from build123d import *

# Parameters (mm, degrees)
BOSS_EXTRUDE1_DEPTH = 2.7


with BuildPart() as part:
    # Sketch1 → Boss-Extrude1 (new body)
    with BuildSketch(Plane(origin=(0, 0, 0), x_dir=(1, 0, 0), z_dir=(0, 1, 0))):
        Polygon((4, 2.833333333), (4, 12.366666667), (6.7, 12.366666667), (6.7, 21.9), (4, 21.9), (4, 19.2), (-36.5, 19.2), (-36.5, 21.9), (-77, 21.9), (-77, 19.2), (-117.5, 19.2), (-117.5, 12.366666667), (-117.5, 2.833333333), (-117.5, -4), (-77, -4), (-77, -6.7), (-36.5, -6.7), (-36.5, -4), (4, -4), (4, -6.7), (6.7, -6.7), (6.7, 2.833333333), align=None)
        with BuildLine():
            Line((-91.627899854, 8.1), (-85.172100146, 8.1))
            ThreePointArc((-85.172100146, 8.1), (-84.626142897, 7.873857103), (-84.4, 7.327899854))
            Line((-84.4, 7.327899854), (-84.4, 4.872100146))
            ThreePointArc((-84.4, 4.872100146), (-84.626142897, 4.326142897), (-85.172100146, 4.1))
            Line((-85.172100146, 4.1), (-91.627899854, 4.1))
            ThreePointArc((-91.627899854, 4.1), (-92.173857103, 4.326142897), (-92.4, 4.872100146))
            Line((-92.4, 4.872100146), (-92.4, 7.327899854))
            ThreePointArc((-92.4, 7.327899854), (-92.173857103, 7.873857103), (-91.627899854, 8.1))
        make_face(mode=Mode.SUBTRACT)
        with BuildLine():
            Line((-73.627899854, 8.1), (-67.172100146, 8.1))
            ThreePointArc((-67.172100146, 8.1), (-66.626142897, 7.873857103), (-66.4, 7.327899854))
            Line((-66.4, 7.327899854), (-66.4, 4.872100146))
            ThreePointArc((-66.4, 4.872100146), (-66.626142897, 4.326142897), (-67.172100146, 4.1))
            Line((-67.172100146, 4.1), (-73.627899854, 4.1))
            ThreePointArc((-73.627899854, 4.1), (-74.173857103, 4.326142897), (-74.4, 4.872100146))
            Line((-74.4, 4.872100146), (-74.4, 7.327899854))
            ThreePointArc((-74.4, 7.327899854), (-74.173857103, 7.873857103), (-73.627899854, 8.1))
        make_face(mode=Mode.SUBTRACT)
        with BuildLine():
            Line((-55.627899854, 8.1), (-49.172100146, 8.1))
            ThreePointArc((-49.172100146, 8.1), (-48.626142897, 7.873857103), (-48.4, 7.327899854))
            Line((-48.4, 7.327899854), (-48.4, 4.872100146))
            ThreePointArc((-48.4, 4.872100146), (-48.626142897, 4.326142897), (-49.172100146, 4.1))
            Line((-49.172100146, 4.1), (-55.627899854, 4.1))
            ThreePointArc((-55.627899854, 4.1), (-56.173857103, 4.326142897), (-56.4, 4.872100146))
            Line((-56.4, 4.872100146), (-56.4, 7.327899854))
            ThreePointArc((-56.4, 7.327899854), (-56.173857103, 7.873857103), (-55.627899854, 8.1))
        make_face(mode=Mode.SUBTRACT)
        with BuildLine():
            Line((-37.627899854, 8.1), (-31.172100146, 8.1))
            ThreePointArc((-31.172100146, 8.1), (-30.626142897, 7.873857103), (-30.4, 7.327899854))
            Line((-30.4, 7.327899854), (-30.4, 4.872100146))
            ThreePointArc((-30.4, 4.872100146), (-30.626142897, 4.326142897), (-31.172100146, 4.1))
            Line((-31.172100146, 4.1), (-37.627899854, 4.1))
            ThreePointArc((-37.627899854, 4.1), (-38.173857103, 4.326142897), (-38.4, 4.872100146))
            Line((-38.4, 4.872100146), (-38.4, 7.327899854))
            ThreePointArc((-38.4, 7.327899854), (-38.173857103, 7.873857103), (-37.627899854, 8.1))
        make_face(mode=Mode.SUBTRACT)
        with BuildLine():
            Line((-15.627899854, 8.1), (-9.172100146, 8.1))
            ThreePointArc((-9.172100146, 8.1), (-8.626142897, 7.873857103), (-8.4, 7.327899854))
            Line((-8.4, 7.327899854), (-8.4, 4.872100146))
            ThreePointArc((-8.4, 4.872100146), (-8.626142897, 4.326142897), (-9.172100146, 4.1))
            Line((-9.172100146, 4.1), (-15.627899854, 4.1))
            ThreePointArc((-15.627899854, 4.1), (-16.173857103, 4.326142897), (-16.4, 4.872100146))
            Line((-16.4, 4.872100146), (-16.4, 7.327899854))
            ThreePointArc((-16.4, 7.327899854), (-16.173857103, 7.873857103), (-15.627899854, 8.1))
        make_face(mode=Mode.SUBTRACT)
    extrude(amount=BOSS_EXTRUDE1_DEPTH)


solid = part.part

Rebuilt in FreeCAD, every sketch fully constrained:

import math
import FreeCAD as App
import Part
import Sketcher

doc = App.newDocument("Part")
params = doc.addObject("Spreadsheet::Sheet", "Params")
for row, (alias, value) in enumerate([
    ("sketch1_width", "2.7 mm"),
    ("sketch1_width2", "40.5 mm"),
    ("sketch1_height", "23.2 mm"),
    ("pad1_length", "2.7 mm"),
], start=1):
    params.set(f"A{row}", alias)
    params.set(f"B{row}", "=" + value)
    params.setAlias(f"B{row}", alias)

body = doc.addObject("PartDesign::Body", "Body")

# Sketch on XZ plane
sketch1 = doc.addObject("Sketcher::SketchObject", "Sketch")
body.addObject(sketch1)
sketch1.AttachmentSupport = (doc.XZ_Plane, [""])
sketch1.MapMode = "FlatFace"
sketch1.addGeometry([
    Part.LineSegment(App.Vector(4, -2.8, 0), App.Vector(4, -12.4, 0)),  # 0
    Part.LineSegment(App.Vector(4, -12.4, 0), App.Vector(6.7, -12.4, 0)),  # 1
    Part.LineSegment(App.Vector(6.7, -12.4, 0), App.Vector(6.7, -21.9, 0)),  # 2
    Part.LineSegment(App.Vector(6.7, -21.9, 0), App.Vector(4, -21.9, 0)),  # 3
    Part.LineSegment(App.Vector(4, -21.9, 0), App.Vector(4, -19.2, 0)),  # 4
    Part.LineSegment(App.Vector(4, -19.2, 0), App.Vector(-36.5, -19.2, 0)),  # 5
    Part.LineSegment(App.Vector(-36.5, -19.2, 0), App.Vector(-36.5, -21.9, 0)),  # 6
    Part.LineSegment(App.Vector(-36.5, -21.9, 0), App.Vector(-77, -21.9, 0)),  # 7
    Part.LineSegment(App.Vector(-77, -21.9, 0), App.Vector(-77, -19.2, 0)),  # 8
    Part.LineSegment(App.Vector(-77, -19.2, 0), App.Vector(-117.5, -19.2, 0)),  # 9
    Part.LineSegment(App.Vector(-117.5, -19.2, 0), App.Vector(-117.5, 4, 0)),  # 10
    Part.LineSegment(App.Vector(-117.5, 4, 0), App.Vector(-77, 4, 0)),  # 11
    Part.LineSegment(App.Vector(-77, 4, 0), App.Vector(-77, 6.7, 0)),  # 12
    Part.LineSegment(App.Vector(-77, 6.7, 0), App.Vector(-36.5, 6.7, 0)),  # 13
    Part.LineSegment(App.Vector(-36.5, 6.7, 0), App.Vector(-36.5, 4, 0)),  # 14
    Part.LineSegment(App.Vector(-36.5, 4, 0), App.Vector(4, 4, 0)),  # 15
    Part.LineSegment(App.Vector(4, 4, 0), App.Vector(4, 6.7, 0)),  # 16
    Part.LineSegment(App.Vector(4, 6.7, 0), App.Vector(6.7, 6.7, 0)),  # 17
    Part.LineSegment(App.Vector(6.7, 6.7, 0), App.Vector(6.7, -2.8, 0)),  # 18
    Part.LineSegment(App.Vector(6.7, -2.8, 0), App.Vector(4, -2.8, 0)),  # 19
    Part.ArcOfCircle(Part.Circle(App.Vector(-91.6, -7.3, 0), App.Vector(0, 0, 1), 0.8), math.radians(180), math.radians(270)),  # 20
    Part.LineSegment(App.Vector(-91.6, -8.1, 0), App.Vector(-85.2, -8.1, 0)),  # 21
    Part.ArcOfCircle(Part.Circle(App.Vector(-85.2, -7.3, 0), App.Vector(0, 0, 1), 0.8), math.radians(-90), math.radians(0)),  # 22
    Part.LineSegment(App.Vector(-84.4, -7.3, 0), App.Vector(-84.4, -4.9, 0)),  # 23
    Part.ArcOfCircle(Part.Circle(App.Vector(-85.2, -4.9, 0), App.Vector(0, 0, 1), 0.8), math.radians(0), math.radians(90)),  # 24
    Part.LineSegment(App.Vector(-85.2, -4.1, 0), App.Vector(-91.6, -4.1, 0)),  # 25
    Part.ArcOfCircle(Part.Circle(App.Vector(-91.6, -4.9, 0), App.Vector(0, 0, 1), 0.8), math.radians(90), math.radians(180)),  # 26
    Part.LineSegment(App.Vector(-92.4, -4.9, 0), App.Vector(-92.4, -7.3, 0)),  # 27
    Part.ArcOfCircle(Part.Circle(App.Vector(-73.6, -7.3, 0), App.Vector(0, 0, 1), 0.8), math.radians(180), math.radians(270)),  # 28
    Part.LineSegment(App.Vector(-73.6, -8.1, 0), App.Vector(-67.2, -8.1, 0)),  # 29
    Part.ArcOfCircle(Part.Circle(App.Vector(-67.2, -7.3, 0), App.Vector(0, 0, 1), 0.8), math.radians(-90), math.radians(0)),  # 30
    Part.LineSegment(App.Vector(-66.4, -7.3, 0), App.Vector(-66.4, -4.9, 0)),  # 31
    Part.ArcOfCircle(Part.Circle(App.Vector(-67.2, -4.9, 0), App.Vector(0, 0, 1), 0.8), math.radians(0), math.radians(90)),  # 32
    Part.LineSegment(App.Vector(-67.2, -4.1, 0), App.Vector(-73.6, -4.1, 0)),  # 33
    Part.ArcOfCircle(Part.Circle(App.Vector(-73.6, -4.9, 0), App.Vector(0, 0, 1), 0.8), math.radians(90), math.radians(180)),  # 34
    Part.LineSegment(App.Vector(-74.4, -4.9, 0), App.Vector(-74.4, -7.3, 0)),  # 35
    Part.ArcOfCircle(Part.Circle(App.Vector(-55.6, -7.3, 0), App.Vector(0, 0, 1), 0.8), math.radians(180), math.radians(270)),  # 36
    Part.LineSegment(App.Vector(-55.6, -8.1, 0), App.Vector(-49.2, -8.1, 0)),  # 37
    Part.ArcOfCircle(Part.Circle(App.Vector(-49.2, -7.3, 0), App.Vector(0, 0, 1), 0.8), math.radians(-90), math.radians(0)),  # 38
    Part.LineSegment(App.Vector(-48.4, -7.3, 0), App.Vector(-48.4, -4.9, 0)),  # 39
    Part.ArcOfCircle(Part.Circle(App.Vector(-49.2, -4.9, 0), App.Vector(0, 0, 1), 0.8), math.radians(0), math.radians(90)),  # 40
    Part.LineSegment(App.Vector(-49.2, -4.1, 0), App.Vector(-55.6, -4.1, 0)),  # 41
    Part.ArcOfCircle(Part.Circle(App.Vector(-55.6, -4.9, 0), App.Vector(0, 0, 1), 0.8), math.radians(90), math.radians(180)),  # 42
    Part.LineSegment(App.Vector(-56.4, -4.9, 0), App.Vector(-56.4, -7.3, 0)),  # 43
    Part.ArcOfCircle(Part.Circle(App.Vector(-37.6, -7.3, 0), App.Vector(0, 0, 1), 0.8), math.radians(180), math.radians(270)),  # 44
    Part.LineSegment(App.Vector(-37.6, -8.1, 0), App.Vector(-31.2, -8.1, 0)),  # 45
    Part.ArcOfCircle(Part.Circle(App.Vector(-31.2, -7.3, 0), App.Vector(0, 0, 1), 0.8), math.radians(-90), math.radians(0)),  # 46
    Part.LineSegment(App.Vector(-30.4, -7.3, 0), App.Vector(-30.4, -4.9, 0)),  # 47
    Part.ArcOfCircle(Part.Circle(App.Vector(-31.2, -4.9, 0), App.Vector(0, 0, 1), 0.8), math.radians(0), math.radians(90)),  # 48
    Part.LineSegment(App.Vector(-31.2, -4.1, 0), App.Vector(-37.6, -4.1, 0)),  # 49
    Part.ArcOfCircle(Part.Circle(App.Vector(-37.6, -4.9, 0), App.Vector(0, 0, 1), 0.8), math.radians(90), math.radians(180)),  # 50
    Part.LineSegment(App.Vector(-38.4, -4.9, 0), App.Vector(-38.4, -7.3, 0)),  # 51
    Part.ArcOfCircle(Part.Circle(App.Vector(-15.6, -7.3, 0), App.Vector(0, 0, 1), 0.8), math.radians(180), math.radians(270)),  # 52
    Part.LineSegment(App.Vector(-15.6, -8.1, 0), App.Vector(-9.2, -8.1, 0)),  # 53
    Part.ArcOfCircle(Part.Circle(App.Vector(-9.2, -7.3, 0), App.Vector(0, 0, 1), 0.8), math.radians(-90), math.radians(0)),  # 54
    Part.LineSegment(App.Vector(-8.4, -7.3, 0), App.Vector(-8.4, -4.9, 0)),  # 55
    Part.ArcOfCircle(Part.Circle(App.Vector(-9.2, -4.9, 0), App.Vector(0, 0, 1), 0.8), math.radians(0), math.radians(90)),  # 56
    Part.LineSegment(App.Vector(-9.2, -4.1, 0), App.Vector(-15.6, -4.1, 0)),  # 57
    Part.ArcOfCircle(Part.Circle(App.Vector(-15.6, -4.9, 0), App.Vector(0, 0, 1), 0.8), math.radians(90), math.radians(180)),  # 58
    Part.LineSegment(App.Vector(-16.4, -4.9, 0), App.Vector(-16.4, -7.3, 0)),  # 59
], False)
sketch1.addConstraint([
    Sketcher.Constraint("Coincident", 0, 2, 1, 1),
    Sketcher.Constraint("Coincident", 1, 2, 2, 1),
    Sketcher.Constraint("Coincident", 2, 2, 3, 1),
    Sketcher.Constraint("Coincident", 3, 2, 4, 1),
    Sketcher.Constraint("Coincident", 4, 2, 5, 1),
    Sketcher.Constraint("Coincident", 5, 2, 6, 1),
    Sketcher.Constraint("Coincident", 6, 2, 7, 1),
    Sketcher.Constraint("Coincident", 7, 2, 8, 1),
    Sketcher.Constraint("Coincident", 8, 2, 9, 1),
    Sketcher.Constraint("Coincident", 9, 2, 10, 1),
    Sketcher.Constraint("Coincident", 10, 2, 11, 1),
    Sketcher.Constraint("Coincident", 11, 2, 12, 1),
    Sketcher.Constraint("Coincident", 12, 2, 13, 1),
    Sketcher.Constraint("Coincident", 13, 2, 14, 1),
    Sketcher.Constraint("Coincident", 14, 2, 15, 1),
    Sketcher.Constraint("Coincident", 15, 2, 16, 1),
    Sketcher.Constraint("Coincident", 16, 2, 17, 1),
    Sketcher.Constraint("Coincident", 17, 2, 18, 1),
    Sketcher.Constraint("Coincident", 18, 2, 19, 1),
    Sketcher.Constraint("Coincident", 19, 2, 0, 1),
    Sketcher.Constraint("Tangent", 20, 2, 21, 1),
    Sketcher.Constraint("Tangent", 21, 2, 22, 1),
    Sketcher.Constraint("Tangent", 22, 2, 23, 1),
    Sketcher.Constraint("Tangent", 23, 2, 24, 1),
    Sketcher.Constraint("Tangent", 24, 2, 25, 1),
    Sketcher.Constraint("Tangent", 25, 2, 26, 1),
    Sketcher.Constraint("Tangent", 26, 2, 27, 1),
    Sketcher.Constraint("Tangent", 27, 2, 20, 1),
    Sketcher.Constraint("Tangent", 28, 2, 29, 1),
    Sketcher.Constraint("Tangent", 29, 2, 30, 1),
    Sketcher.Constraint("Tangent", 30, 2, 31, 1),
    Sketcher.Constraint("Tangent", 31, 2, 32, 1),
    Sketcher.Constraint("Tangent", 32, 2, 33, 1),
    Sketcher.Constraint("Tangent", 33, 2, 34, 1),
    Sketcher.Constraint("Tangent", 34, 2, 35, 1),
    Sketcher.Constraint("Tangent", 35, 2, 28, 1),
    Sketcher.Constraint("Tangent", 36, 2, 37, 1),
    Sketcher.Constraint("Tangent", 37, 2, 38, 1),
    Sketcher.Constraint("Tangent", 38, 2, 39, 1),
    Sketcher.Constraint("Tangent", 39, 2, 40, 1),
    Sketcher.Constraint("Tangent", 40, 2, 41, 1),
    Sketcher.Constraint("Tangent", 41, 2, 42, 1),
    Sketcher.Constraint("Tangent", 42, 2, 43, 1),
    Sketcher.Constraint("Tangent", 43, 2, 36, 1),
    Sketcher.Constraint("Tangent", 44, 2, 45, 1),
    Sketcher.Constraint("Tangent", 45, 2, 46, 1),
    Sketcher.Constraint("Tangent", 46, 2, 47, 1),
    Sketcher.Constraint("Tangent", 47, 2, 48, 1),
    Sketcher.Constraint("Tangent", 48, 2, 49, 1),
    Sketcher.Constraint("Tangent", 49, 2, 50, 1),
    Sketcher.Constraint("Tangent", 50, 2, 51, 1),
    Sketcher.Constraint("Tangent", 51, 2, 44, 1),
    Sketcher.Constraint("Tangent", 52, 2, 53, 1),
    Sketcher.Constraint("Tangent", 53, 2, 54, 1),
    Sketcher.Constraint("Tangent", 54, 2, 55, 1),
    Sketcher.Constraint("Tangent", 55, 2, 56, 1),
    Sketcher.Constraint("Tangent", 56, 2, 57, 1),
    Sketcher.Constraint("Tangent", 57, 2, 58, 1),
    Sketcher.Constraint("Tangent", 58, 2, 59, 1),
    Sketcher.Constraint("Tangent", 59, 2, 52, 1),
    Sketcher.Constraint("Vertical", 0),
    Sketcher.Constraint("Horizontal", 1),
    Sketcher.Constraint("Vertical", 2),
    Sketcher.Constraint("Horizontal", 3),
    Sketcher.Constraint("Vertical", 4),
    Sketcher.Constraint("Horizontal", 5),
    Sketcher.Constraint("Vertical", 6),
    Sketcher.Constraint("Horizontal", 7),
    Sketcher.Constraint("Vertical", 8),
    Sketcher.Constraint("Horizontal", 9),
    Sketcher.Constraint("Vertical", 10),
    Sketcher.Constraint("Horizontal", 11),
    Sketcher.Constraint("Vertical", 12),
    Sketcher.Constraint("Horizontal", 13),
    Sketcher.Constraint("Vertical", 14),
    Sketcher.Constraint("Horizontal", 15),
    Sketcher.Constraint("Vertical", 16),
    Sketcher.Constraint("Horizontal", 17),
    Sketcher.Constraint("Vertical", 18),
    Sketcher.Constraint("Horizontal", 19),
    Sketcher.Constraint("Horizontal", 21),
    Sketcher.Constraint("Vertical", 23),
    Sketcher.Constraint("Horizontal", 25),
    Sketcher.Constraint("Vertical", 27),
    Sketcher.Constraint("Horizontal", 29),
    Sketcher.Constraint("Vertical", 31),
    Sketcher.Constraint("Horizontal", 33),
    Sketcher.Constraint("Vertical", 35),
    Sketcher.Constraint("Horizontal", 37),
    Sketcher.Constraint("Vertical", 39),
    Sketcher.Constraint("Horizontal", 41),
    Sketcher.Constraint("Vertical", 43),
    Sketcher.Constraint("Horizontal", 45),
    Sketcher.Constraint("Vertical", 47),
    Sketcher.Constraint("Horizontal", 49),
    Sketcher.Constraint("Vertical", 51),
    Sketcher.Constraint("Horizontal", 53),
    Sketcher.Constraint("Vertical", 55),
    Sketcher.Constraint("Horizontal", 57),
    Sketcher.Constraint("Vertical", 59),
    Sketcher.Constraint("Equal", 20, 22),
    Sketcher.Constraint("Equal", 22, 24),
    Sketcher.Constraint("Equal", 24, 26),
    Sketcher.Constraint("Equal", 26, 28),
    Sketcher.Constraint("Equal", 28, 30),
    Sketcher.Constraint("Equal", 30, 32),
    Sketcher.Constraint("Equal", 32, 34),
    Sketcher.Constraint("Equal", 34, 36),
    Sketcher.Constraint("Equal", 36, 38),
    Sketcher.Constraint("Equal", 38, 40),
    Sketcher.Constraint("Equal", 40, 42),
    Sketcher.Constraint("Equal", 42, 44),
    Sketcher.Constraint("Equal", 44, 46),
    Sketcher.Constraint("Equal", 46, 48),
    Sketcher.Constraint("Equal", 48, 50),
    Sketcher.Constraint("Equal", 50, 52),
    Sketcher.Constraint("Equal", 52, 54),
    Sketcher.Constraint("Equal", 54, 56),
    Sketcher.Constraint("Equal", 56, 58),
    Sketcher.Constraint("Horizontal", 22, 3, 28, 3),
    Sketcher.Constraint("Horizontal", 26, 3, 32, 3),
    Sketcher.Constraint("Horizontal", 30, 3, 36, 3),
    Sketcher.Constraint("Horizontal", 34, 3, 40, 3),
    Sketcher.Constraint("Horizontal", 38, 3, 44, 3),
    Sketcher.Constraint("Horizontal", 42, 3, 48, 3),
    Sketcher.Constraint("Horizontal", 46, 3, 52, 3),
    Sketcher.Constraint("Horizontal", 50, 3, 56, 3),
    Sketcher.Constraint("Horizontal", 3, 2, 6, 2),
    Sketcher.Constraint("Horizontal", 5, 2, 8, 2),
    Sketcher.Constraint("Horizontal", 11, 2, 14, 2),
    Sketcher.Constraint("Horizontal", 13, 2, 16, 2),
    Sketcher.Constraint("Vertical", 0, 2, 3, 2),
    Sketcher.Constraint("Vertical", 8, 2, 11, 2),
    Sketcher.Constraint("Vertical", 6, 2, 13, 2),
    Sketcher.Constraint("Vertical", 4, 2, 15, 2),
    Sketcher.Constraint("Vertical", 2, 2, 17, 2),
    Sketcher.Constraint("Equal", 5, 7),
    Sketcher.Constraint("Equal", 7, 9),
    Sketcher.Constraint("Equal", 25, 29),
    Sketcher.Constraint("Equal", 33, 37),
    Sketcher.Constraint("Equal", 41, 45),
    Sketcher.Constraint("Equal", 49, 53),
    Sketcher.Constraint("Equal", 0, 2),
    Sketcher.Constraint("Equal", 19, 4),
    Sketcher.Constraint("Equal", 8, 12),
    Sketcher.Constraint("Equal", 2, 18),
    Sketcher.Constraint("DistanceX", 1, 1, 1, 2, 2.7),
    Sketcher.Constraint("DistanceX", 5, 2, 5, 1, 40.5),
    Sketcher.Constraint("DistanceY", 10, 1, 10, 2, 23.2),
    Sketcher.Constraint("DistanceX", -1, 1, 0, 2, 4.0),
    Sketcher.Constraint("DistanceY", -1, 1, 10, 2, 4.0),
    Sketcher.Constraint("DistanceY", 20, 2, -1, 1, 8.1),
    Sketcher.Constraint("DistanceX", 22, 2, -1, 1, 84.4),
    Sketcher.Constraint("DistanceY", 24, 2, -1, 1, 4.1),
    Sketcher.Constraint("DistanceX", 26, 2, -1, 1, 92.4),
    Sketcher.Constraint("DistanceX", 30, 2, -1, 1, 66.4),
    Sketcher.Constraint("DistanceX", 38, 2, -1, 1, 48.4),
    Sketcher.Constraint("DistanceX", 46, 2, -1, 1, 30.4),
    Sketcher.Constraint("DistanceX", 54, 2, -1, 1, 8.4),
    Sketcher.Constraint("Radius", 20, 0.7721),
])
sketch1.setExpression("Constraints[146]", "Params.sketch1_width")
sketch1.setExpression("Constraints[147]", "Params.sketch1_width2")
sketch1.setExpression("Constraints[148]", "Params.sketch1_height")
pad1 = doc.addObject("PartDesign::Pad", "Pad")
body.addObject(pad1)
pad1.Profile = sketch1
pad1.setExpression("Length", "Params.pad1_length")
pad1.Reversed = True

doc.recompute()
